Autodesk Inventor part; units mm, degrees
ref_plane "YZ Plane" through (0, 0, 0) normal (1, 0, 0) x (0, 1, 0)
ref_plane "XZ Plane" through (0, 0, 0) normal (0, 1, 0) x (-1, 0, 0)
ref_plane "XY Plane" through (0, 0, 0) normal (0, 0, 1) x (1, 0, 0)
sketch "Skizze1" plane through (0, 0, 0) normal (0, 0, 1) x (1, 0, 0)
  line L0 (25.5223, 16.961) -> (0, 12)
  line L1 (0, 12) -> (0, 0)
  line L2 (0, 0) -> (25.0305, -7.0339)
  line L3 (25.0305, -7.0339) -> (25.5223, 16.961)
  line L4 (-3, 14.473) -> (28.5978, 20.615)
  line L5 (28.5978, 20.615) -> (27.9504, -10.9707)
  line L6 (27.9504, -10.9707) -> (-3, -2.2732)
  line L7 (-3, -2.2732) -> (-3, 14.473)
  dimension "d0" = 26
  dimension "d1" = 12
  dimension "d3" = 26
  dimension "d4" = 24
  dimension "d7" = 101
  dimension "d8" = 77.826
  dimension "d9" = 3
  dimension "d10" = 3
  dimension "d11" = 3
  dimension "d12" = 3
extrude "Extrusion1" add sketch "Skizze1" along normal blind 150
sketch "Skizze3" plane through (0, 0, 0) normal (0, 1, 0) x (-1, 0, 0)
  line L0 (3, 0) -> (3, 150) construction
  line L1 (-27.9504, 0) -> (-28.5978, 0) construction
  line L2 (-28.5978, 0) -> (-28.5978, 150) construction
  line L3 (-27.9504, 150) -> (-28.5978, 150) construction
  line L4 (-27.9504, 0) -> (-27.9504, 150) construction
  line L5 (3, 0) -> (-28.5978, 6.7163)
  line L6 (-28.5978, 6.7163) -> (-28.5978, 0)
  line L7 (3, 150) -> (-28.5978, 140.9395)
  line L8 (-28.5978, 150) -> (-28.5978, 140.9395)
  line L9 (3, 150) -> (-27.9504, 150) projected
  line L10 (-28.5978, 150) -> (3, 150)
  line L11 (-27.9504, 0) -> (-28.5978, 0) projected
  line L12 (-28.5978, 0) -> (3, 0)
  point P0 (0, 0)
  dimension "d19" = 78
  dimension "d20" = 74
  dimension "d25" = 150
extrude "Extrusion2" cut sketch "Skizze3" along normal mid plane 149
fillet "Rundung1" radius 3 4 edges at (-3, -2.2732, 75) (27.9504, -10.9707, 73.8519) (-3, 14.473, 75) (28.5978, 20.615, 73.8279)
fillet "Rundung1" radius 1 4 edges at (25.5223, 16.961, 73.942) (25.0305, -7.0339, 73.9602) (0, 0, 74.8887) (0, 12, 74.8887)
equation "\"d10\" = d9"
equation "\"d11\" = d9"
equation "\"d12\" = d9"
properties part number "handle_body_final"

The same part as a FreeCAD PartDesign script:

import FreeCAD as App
import Part
import Sketcher
from FreeCAD import Vector
Q = App.Units.Quantity


def edges_at(feature, points):
    """Names of the edges that pass closest to the given points."""
    edges = feature.Shape.Edges
    near = lambda p: min(range(len(edges)), key=lambda i: edges[i].distToShape(Part.Vertex(*p))[0])
    return sorted({f"Edge{near(p) + 1}" for p in points})


def add_polygon(sketch, points):
    """Adds a closed chain of lines whose ends are joined by coincident constraints."""
    first, n = sketch.GeometryCount, len(points)
    for a, b in zip(points, points[1:] + points[:1]):
        sketch.addGeometry(Part.LineSegment(App.Vector(*a, 0), App.Vector(*b, 0)), False)
    for i in range(n):
        sketch.addConstraint(Sketcher.Constraint("Coincident", first + i, 2, first + (i + 1) % n, 1))

doc = App.newDocument("Part")
params = doc.addObject("Spreadsheet::Sheet", "Params")
for row, (alias, value) in enumerate([
    ("sketch1_height", "12 mm"),
    ("sketch1_length", "26 mm"),
    ("sketch1_length2", "24 mm"),
    ("pad1_length", "150 mm"),
    ("pocket1_length", "149 mm"),
    ("fillet_radius", "3 mm"),
    ("fillet2_radius", "1 mm"),
], start=1):
    params.set(f"A{row}", alias)
    params.set(f"B{row}", "=" + value)
    params.setAlias(f"B{row}", alias)

body = doc.addObject("PartDesign::Body", "Body")

# Sketch on XY plane
sketch1 = body.newObject("Sketcher::SketchObject", "Sketch")
sketch1.AttachmentSupport = (doc.getObject("XY_Plane"), [""])
sketch1.MapMode = "FlatFace"
add_polygon(sketch1, [(29, 21), (-3, 14), (-3, -2), (28, -11)])  # lines 0-3
add_polygon(sketch1, [(0, 12), (26, 17), (25, -7), (0, 0)])  # lines 4-7
sketch1.addConstraint([
    Sketcher.Constraint("Vertical", 1),
    Sketcher.Constraint("Vertical", 7),
    Sketcher.Constraint("Coincident", 6, 2, -1, 1),
    Sketcher.Constraint("Parallel", 0, 4),
    Sketcher.Constraint("Parallel", 3, 5),
    Sketcher.Constraint("Parallel", 2, 6),
    Sketcher.Constraint("Equal", 4, 6),
    Sketcher.Constraint("DistanceY", 7, 1, 7, 2, 12.0),
    Sketcher.Constraint("Distance", 4, 26.0),
    Sketcher.Constraint("Distance", 5, 24.0),
    Sketcher.Constraint("DistanceX", 0, 2, -1, 1, 3.0),
    Sketcher.Constraint("Angle", 0, Q("-169 deg")),
    Sketcher.Constraint("DistanceX", 5, 2, 2, 2, 2.92),
    Sketcher.Constraint("DistanceY", 1, 2, 1, 1, 16.7462),
    Sketcher.Constraint("DistanceY", -1, 1, 0, 2, 14.473),
])
sketch1.setExpression("Constraints[15]", "Params.sketch1_height")
sketch1.setExpression("Constraints[16]", "Params.sketch1_length")
sketch1.setExpression("Constraints[17]", "Params.sketch1_length2")
pad1 = body.newObject("PartDesign::Pad", "Pad")
pad1.Profile = sketch1
pad1.setExpression("Length", "Params.pad1_length")

# Sketch on XZ plane
sketch2 = body.newObject("Sketcher::SketchObject", "Sketch001")
sketch2.AttachmentSupport = (doc.getObject("XZ_Plane"), [""])
sketch2.MapMode = "FlatFace"
add_polygon(sketch2, [(29, 0), (-3, 0), (29, 7)])  # lines 0-2
add_polygon(sketch2, [(29, 141), (-3, 150), (29, 150)])  # lines 3-5
sketch2.addConstraint([
    Sketcher.Constraint("Horizontal", 0),
    Sketcher.Constraint("Vertical", 2),
    Sketcher.Constraint("Horizontal", 4),
    Sketcher.Constraint("Vertical", 5),
    Sketcher.Constraint("PointOnObject", 0, 2, -1),
    Sketcher.Constraint("Vertical", 0, 2, 3, 2),
    Sketcher.Constraint("Vertical", 2, 2, 4, 2),
    Sketcher.Constraint("DistanceY", -1, 1, 3, 2, 150.0),
    Sketcher.Constraint("Angle", 1, Q("12 deg")),
    Sketcher.Constraint("Angle", 3, Q("164 deg")),
    Sketcher.Constraint("DistanceX", 0, 2, -1, 1, 3.0),
    Sketcher.Constraint("DistanceX", 0, 2, 0, 1, 31.5978),
])
pocket1 = body.newObject("PartDesign::Pocket", "Pocket")
pocket1.Profile = sketch2
pocket1.setExpression("Length", "Params.pocket1_length")
pocket1.Midplane = True
doc.recompute()

fillet = body.newObject("PartDesign::Fillet", "Fillet")
fillet.Base = (pocket1, edges_at(pocket1, [
    (-3, -2.273, 75),
    (27.95, -10.971, 73.852),
    (-3, 14.473, 75),
    (28.598, 20.615, 73.828),
]))
fillet.setExpression("Radius", "Params.fillet_radius")
doc.recompute()

fillet2 = body.newObject("PartDesign::Fillet", "Fillet001")
fillet2.Base = (fillet, edges_at(fillet, [
    (25.522, 16.961, 73.942),
    (25.03, -7.034, 73.96),
    (0, 0, 74.889),
    (0, 12, 74.889),
]))
fillet2.setExpression("Radius", "Params.fillet2_radius")

doc.recompute()
